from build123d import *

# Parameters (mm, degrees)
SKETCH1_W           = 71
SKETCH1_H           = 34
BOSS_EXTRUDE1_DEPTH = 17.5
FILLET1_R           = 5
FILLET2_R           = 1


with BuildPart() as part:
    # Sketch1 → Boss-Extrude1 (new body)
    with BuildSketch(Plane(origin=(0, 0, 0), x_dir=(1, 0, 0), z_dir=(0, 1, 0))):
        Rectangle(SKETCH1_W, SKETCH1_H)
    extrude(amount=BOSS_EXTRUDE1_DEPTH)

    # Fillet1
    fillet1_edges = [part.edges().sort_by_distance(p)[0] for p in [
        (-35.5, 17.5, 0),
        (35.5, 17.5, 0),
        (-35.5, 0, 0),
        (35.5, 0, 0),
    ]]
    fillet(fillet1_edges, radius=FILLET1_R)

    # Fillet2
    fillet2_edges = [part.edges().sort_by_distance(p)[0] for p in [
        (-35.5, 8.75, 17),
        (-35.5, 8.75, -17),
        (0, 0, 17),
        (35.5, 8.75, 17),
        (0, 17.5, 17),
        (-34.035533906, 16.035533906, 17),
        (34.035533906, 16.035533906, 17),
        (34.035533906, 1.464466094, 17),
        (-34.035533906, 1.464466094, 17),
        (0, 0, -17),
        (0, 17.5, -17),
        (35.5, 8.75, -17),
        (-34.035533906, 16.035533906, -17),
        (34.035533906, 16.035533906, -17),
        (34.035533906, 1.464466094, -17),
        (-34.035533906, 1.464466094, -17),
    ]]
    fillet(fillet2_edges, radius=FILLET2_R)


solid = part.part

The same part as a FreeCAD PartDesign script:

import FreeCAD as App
import Part
import Sketcher


def edges_at(feature, points):
    """Names of the edges that pass closest to the given points."""
    edges = feature.Shape.Edges
    near = lambda p: min(range(len(edges)), key=lambda i: edges[i].distToShape(Part.Vertex(*p))[0])
    return sorted({f"Edge{near(p) + 1}" for p in points})


def add_polygon(sketch, points):
    """Adds a closed chain of lines whose ends are joined by coincident constraints."""
    first, n = sketch.GeometryCount, len(points)
    for a, b in zip(points, points[1:] + points[:1]):
        sketch.addGeometry(Part.LineSegment(App.Vector(*a, 0), App.Vector(*b, 0)), False)
    for i in range(n):
        sketch.addConstraint(Sketcher.Constraint("Coincident", first + i, 2, first + (i + 1) % n, 1))

doc = App.newDocument("Part")
body = doc.addObject("PartDesign::Body", "Body")

sketch1 = doc.addObject("Sketcher::SketchObject", "Sketch")
body.addObject(sketch1)
sketch1.AttachmentSupport = (doc.XZ_Plane, [""])
sketch1.MapMode = "FlatFace"
add_polygon(sketch1, [(-36, -17), (-36, 17), (36, 17), (36, -17)])
sketch1.addConstraint([
    Sketcher.Constraint("Vertical", 0),
    Sketcher.Constraint("Horizontal", 1),
    Sketcher.Constraint("Vertical", 2),
    Sketcher.Constraint("Horizontal", 3),
    Sketcher.Constraint("Symmetric", 0, 2, 2, 2, -1, 1),
    Sketcher.Constraint("DistanceX", 1, 1, 1, 2, 71.0),
    Sketcher.Constraint("DistanceY", 0, 1, 0, 2, 34.0),
])
pad1 = doc.addObject("PartDesign::Pad", "Pad")
body.addObject(pad1)
pad1.Profile = sketch1
pad1.Length = 17.5
pad1.Reversed = True
doc.recompute()

fillet = doc.addObject("PartDesign::Fillet", "Fillet")
body.addObject(fillet)
fillet.Base = (pad1, edges_at(pad1, [
    (-35.5, 17.5, 0),
    (35.5, 17.5, 0),
    (-35.5, 0, 0),
    (35.5, 0, 0),
]))
fillet.Radius = 5
doc.recompute()

fillet2 = doc.addObject("PartDesign::Fillet", "Fillet001")
body.addObject(fillet2)
fillet2.Base = (fillet, edges_at(fillet, [
    (-35.5, 8.75, 17),
    (-35.5, 8.75, -17),
    (0, 0, 17),
    (35.5, 8.75, 17),
    (0, 17.5, 17),
    (-34.036, 16.036, 17),
    (34.036, 16.036, 17),
    (34.036, 1.464, 17),
    (-34.036, 1.464, 17),
    (0, 0, -17),
    (0, 17.5, -17),
    (35.5, 8.75, -17),
    (-34.036, 16.036, -17),
    (34.036, 16.036, -17),
    (34.036, 1.464, -17),
    (-34.036, 1.464, -17),
]))
fillet2.Radius = 1

doc.recompute()
